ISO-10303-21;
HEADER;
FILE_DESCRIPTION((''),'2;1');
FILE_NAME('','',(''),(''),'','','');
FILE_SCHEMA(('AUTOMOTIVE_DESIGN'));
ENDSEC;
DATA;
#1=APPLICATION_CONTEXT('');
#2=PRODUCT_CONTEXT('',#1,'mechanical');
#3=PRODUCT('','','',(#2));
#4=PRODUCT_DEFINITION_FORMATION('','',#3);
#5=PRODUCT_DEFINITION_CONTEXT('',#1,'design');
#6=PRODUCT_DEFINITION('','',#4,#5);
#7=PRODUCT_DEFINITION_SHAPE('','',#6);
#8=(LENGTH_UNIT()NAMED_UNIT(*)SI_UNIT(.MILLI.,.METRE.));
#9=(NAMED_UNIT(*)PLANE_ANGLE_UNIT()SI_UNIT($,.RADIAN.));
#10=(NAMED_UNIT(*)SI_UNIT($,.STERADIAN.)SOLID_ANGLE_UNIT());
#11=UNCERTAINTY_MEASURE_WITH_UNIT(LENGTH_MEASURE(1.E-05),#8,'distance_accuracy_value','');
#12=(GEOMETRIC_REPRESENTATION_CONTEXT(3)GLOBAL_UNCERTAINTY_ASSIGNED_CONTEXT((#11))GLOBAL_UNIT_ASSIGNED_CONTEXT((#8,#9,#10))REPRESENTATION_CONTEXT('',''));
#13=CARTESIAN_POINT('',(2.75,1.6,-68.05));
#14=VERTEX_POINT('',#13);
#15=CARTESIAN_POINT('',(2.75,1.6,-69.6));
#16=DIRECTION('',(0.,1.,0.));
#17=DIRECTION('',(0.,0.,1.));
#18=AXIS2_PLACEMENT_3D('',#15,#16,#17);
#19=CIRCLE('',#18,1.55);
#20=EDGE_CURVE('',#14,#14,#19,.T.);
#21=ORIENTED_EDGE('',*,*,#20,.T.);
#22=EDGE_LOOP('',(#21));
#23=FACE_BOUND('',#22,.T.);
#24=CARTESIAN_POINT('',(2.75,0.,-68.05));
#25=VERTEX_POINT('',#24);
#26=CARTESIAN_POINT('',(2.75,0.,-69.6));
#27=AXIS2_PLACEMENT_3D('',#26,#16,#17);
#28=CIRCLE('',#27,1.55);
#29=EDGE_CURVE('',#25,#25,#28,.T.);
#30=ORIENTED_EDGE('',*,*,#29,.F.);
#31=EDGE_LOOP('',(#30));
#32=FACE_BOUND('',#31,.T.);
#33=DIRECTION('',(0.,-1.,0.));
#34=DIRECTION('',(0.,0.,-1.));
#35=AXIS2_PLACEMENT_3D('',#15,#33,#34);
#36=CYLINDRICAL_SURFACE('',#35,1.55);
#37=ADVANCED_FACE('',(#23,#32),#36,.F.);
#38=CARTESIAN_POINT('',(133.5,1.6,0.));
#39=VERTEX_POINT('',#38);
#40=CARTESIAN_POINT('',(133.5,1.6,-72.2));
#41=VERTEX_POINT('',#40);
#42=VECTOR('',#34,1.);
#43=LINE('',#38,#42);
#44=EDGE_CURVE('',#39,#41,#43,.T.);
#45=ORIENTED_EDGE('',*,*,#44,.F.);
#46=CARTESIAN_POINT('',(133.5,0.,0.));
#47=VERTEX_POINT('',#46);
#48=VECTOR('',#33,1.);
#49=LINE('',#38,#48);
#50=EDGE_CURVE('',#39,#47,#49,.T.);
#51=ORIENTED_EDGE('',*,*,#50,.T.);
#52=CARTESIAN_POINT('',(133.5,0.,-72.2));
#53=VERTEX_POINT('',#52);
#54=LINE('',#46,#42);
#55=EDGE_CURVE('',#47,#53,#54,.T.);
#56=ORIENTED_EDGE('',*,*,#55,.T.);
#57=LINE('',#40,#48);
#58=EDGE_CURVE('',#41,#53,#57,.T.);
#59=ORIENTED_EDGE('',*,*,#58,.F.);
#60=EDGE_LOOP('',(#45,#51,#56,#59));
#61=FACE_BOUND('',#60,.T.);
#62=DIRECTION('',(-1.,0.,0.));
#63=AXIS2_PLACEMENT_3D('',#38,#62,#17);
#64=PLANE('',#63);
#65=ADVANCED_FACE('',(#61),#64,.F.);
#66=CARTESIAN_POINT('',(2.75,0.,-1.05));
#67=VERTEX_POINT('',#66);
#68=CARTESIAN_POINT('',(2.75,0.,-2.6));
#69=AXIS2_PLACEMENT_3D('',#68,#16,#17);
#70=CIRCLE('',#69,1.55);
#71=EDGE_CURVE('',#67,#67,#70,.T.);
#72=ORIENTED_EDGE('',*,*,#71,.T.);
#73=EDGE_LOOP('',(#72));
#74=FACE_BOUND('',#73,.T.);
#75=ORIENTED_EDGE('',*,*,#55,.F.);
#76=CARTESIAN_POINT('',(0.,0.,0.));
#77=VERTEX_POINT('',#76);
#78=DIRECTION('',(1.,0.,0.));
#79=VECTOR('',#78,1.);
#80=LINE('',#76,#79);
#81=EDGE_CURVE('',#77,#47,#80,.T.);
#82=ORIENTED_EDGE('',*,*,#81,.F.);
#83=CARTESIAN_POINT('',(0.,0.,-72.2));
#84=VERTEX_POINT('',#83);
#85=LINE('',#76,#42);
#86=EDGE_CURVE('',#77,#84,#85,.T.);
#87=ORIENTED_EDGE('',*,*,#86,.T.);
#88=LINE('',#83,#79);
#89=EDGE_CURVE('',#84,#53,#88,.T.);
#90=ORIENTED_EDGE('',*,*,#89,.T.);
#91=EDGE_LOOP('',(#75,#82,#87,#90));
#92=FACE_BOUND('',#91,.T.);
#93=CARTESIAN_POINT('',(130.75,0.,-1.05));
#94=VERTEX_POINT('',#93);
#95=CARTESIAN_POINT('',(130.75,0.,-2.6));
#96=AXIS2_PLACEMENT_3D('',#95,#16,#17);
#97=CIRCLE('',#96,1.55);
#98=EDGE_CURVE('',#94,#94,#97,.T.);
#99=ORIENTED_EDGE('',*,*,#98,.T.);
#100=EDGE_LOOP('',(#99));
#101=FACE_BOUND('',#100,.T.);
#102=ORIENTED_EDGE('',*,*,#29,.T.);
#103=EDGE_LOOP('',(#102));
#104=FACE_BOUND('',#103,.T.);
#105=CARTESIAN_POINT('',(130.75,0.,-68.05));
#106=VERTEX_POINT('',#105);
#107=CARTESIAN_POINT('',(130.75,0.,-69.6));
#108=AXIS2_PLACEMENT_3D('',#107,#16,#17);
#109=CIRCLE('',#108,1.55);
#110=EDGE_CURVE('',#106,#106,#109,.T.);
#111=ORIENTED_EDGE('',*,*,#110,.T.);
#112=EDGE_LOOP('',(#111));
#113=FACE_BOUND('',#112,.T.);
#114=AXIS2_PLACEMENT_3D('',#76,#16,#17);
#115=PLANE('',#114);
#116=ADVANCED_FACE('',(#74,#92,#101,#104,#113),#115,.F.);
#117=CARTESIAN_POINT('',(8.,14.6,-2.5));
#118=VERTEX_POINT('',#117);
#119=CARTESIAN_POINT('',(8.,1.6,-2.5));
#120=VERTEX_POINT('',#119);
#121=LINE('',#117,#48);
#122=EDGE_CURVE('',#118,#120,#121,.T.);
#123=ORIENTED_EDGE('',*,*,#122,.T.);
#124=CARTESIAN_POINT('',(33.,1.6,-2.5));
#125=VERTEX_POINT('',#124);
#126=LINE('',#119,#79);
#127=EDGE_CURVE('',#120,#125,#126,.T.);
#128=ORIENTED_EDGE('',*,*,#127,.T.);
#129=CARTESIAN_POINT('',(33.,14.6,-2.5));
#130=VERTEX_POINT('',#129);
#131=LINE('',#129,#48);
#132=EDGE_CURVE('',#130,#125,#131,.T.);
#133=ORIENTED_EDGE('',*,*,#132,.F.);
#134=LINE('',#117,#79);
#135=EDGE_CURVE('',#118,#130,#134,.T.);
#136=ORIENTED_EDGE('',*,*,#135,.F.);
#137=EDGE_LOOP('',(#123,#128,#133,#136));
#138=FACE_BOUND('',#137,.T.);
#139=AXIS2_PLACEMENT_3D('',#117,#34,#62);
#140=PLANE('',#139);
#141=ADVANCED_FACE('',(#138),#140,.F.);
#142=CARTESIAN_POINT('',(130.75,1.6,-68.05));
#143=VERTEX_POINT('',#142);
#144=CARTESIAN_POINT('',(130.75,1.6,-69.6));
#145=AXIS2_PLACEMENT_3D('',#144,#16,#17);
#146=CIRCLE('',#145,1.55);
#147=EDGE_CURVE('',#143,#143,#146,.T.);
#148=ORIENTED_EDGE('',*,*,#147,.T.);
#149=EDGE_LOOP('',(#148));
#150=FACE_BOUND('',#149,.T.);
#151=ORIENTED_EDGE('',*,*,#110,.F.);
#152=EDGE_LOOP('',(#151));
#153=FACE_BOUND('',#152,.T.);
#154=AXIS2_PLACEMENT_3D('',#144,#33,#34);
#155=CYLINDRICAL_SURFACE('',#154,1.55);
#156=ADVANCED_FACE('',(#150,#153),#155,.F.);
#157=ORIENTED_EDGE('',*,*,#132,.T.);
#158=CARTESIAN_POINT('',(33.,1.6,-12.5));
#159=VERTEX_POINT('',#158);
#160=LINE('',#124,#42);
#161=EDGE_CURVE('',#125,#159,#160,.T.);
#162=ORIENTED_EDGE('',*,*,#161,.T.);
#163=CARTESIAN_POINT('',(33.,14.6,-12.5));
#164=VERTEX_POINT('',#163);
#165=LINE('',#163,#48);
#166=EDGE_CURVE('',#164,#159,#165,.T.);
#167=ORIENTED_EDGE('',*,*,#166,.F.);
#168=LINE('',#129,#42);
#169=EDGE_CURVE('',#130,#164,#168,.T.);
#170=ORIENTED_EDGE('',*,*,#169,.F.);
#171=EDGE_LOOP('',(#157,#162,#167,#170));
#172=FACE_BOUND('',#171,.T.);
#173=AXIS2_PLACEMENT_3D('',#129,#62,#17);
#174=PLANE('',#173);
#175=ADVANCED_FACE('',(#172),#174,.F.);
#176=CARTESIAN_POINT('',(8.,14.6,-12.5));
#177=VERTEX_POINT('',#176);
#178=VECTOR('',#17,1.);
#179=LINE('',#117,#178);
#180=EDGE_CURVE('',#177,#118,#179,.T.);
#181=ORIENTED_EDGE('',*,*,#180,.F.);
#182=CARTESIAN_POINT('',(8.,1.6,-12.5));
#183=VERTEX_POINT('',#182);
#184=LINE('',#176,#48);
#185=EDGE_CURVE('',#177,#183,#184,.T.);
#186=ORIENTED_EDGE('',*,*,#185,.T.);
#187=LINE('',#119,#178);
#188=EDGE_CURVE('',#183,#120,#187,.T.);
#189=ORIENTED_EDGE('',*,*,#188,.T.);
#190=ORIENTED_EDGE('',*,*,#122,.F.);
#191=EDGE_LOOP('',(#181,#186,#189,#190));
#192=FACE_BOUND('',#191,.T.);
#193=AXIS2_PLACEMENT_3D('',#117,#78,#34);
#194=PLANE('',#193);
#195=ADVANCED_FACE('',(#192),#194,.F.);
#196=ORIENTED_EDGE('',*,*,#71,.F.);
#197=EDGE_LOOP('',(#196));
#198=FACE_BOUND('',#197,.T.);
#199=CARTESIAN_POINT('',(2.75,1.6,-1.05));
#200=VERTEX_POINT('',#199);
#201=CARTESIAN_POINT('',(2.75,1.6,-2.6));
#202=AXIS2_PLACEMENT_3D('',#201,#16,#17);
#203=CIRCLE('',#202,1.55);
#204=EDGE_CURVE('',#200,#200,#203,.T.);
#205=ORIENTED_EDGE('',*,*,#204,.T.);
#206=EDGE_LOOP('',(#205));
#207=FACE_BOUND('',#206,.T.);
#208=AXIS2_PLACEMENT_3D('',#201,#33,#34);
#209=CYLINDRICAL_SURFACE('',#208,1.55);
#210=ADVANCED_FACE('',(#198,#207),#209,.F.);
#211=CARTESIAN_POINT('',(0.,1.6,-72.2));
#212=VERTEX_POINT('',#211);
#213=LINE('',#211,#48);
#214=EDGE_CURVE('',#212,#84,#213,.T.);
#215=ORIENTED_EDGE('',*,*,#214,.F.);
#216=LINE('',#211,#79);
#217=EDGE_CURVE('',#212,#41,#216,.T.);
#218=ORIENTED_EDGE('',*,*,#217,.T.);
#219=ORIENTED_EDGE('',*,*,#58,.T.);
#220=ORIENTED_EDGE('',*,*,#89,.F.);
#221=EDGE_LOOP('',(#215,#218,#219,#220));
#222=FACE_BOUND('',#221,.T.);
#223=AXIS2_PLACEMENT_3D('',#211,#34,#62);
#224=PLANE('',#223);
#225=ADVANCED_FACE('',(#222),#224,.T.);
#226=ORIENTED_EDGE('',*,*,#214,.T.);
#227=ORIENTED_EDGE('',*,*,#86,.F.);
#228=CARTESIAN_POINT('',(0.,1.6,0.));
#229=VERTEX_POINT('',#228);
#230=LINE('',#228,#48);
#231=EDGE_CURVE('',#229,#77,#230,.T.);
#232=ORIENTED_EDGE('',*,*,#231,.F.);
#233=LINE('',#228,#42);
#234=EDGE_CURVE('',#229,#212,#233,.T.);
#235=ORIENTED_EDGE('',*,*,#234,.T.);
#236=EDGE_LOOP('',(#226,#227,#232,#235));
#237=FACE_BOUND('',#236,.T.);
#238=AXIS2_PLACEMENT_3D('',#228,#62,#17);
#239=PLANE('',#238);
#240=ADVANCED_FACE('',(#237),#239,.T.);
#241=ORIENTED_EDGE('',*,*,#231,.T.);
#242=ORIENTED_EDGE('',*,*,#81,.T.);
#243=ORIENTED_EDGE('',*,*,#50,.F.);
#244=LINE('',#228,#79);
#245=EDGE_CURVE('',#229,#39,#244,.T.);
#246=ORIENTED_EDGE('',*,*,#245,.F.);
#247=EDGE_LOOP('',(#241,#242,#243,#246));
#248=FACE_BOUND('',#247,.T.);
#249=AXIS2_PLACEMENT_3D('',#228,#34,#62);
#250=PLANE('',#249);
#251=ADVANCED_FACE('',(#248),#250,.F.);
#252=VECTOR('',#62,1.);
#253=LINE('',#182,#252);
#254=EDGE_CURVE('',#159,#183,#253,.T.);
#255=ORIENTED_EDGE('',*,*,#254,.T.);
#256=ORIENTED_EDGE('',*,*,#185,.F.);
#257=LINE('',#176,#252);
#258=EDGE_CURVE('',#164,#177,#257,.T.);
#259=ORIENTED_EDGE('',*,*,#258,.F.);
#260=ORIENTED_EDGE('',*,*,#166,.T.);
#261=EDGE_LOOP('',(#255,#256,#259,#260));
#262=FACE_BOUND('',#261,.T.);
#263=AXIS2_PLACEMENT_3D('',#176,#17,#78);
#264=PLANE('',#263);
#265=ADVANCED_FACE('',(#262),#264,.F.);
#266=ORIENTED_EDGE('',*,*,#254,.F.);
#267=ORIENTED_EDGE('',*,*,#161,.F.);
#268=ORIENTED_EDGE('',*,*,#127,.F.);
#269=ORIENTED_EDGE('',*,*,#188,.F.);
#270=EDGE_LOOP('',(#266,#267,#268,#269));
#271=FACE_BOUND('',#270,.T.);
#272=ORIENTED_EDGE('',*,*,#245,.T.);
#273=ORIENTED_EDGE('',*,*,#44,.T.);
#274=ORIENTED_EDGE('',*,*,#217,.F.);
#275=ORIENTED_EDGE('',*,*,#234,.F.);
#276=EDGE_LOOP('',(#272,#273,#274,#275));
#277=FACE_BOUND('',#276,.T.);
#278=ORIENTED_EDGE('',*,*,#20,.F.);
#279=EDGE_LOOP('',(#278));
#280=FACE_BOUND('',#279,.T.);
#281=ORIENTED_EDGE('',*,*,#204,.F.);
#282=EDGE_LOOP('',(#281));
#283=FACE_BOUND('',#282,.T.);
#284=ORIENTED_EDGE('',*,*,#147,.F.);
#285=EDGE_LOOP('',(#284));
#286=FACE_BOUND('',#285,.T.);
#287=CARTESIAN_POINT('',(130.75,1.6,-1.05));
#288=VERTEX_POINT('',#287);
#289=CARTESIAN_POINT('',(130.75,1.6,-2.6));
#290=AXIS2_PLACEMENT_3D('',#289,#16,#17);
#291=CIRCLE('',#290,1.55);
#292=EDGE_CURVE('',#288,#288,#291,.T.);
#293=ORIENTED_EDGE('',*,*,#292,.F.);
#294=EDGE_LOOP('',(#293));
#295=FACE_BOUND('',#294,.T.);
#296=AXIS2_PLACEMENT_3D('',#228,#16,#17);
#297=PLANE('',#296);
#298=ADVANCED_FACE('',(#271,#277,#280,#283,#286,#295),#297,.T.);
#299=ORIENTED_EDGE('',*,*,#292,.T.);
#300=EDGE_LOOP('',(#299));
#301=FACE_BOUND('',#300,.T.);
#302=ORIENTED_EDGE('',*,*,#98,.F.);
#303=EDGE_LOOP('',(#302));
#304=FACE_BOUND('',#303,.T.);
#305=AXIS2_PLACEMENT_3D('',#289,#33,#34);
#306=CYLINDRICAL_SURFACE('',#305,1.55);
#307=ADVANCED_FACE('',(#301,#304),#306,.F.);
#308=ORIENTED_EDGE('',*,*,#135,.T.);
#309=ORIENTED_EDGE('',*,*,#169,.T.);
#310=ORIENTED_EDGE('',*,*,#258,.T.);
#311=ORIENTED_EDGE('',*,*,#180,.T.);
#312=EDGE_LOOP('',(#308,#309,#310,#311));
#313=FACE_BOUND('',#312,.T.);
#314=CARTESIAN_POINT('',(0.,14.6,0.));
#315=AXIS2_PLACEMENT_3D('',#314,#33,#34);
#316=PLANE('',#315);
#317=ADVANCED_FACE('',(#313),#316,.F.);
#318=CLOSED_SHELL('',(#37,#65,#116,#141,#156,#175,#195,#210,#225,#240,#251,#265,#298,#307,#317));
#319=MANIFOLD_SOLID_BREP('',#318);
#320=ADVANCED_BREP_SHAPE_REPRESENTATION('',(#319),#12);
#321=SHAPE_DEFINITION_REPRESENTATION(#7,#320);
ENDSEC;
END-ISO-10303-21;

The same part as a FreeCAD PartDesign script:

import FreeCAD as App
import Part
import Sketcher

V = App.Vector
Q = App.Units.Quantity


def add_polygon(sketch, points):
    """Adds a closed chain of lines whose ends are joined by coincident constraints."""
    first, n = sketch.GeometryCount, len(points)
    for a, b in zip(points, points[1:] + points[:1]):
        sketch.addGeometry(Part.LineSegment(App.Vector(*a, 0), App.Vector(*b, 0)), False)
    for i in range(n):
        sketch.addConstraint(Sketcher.Constraint("Coincident", first + i, 2, first + (i + 1) % n, 1))

doc = App.newDocument("Part")
params = doc.addObject("Spreadsheet::Sheet", "Params")
for row, (alias, value) in enumerate([
    ("sketch1_diameter", "3.1 mm"),
    ("sketch1_width", "133.5 mm"),
    ("sketch1_height", "72.2 mm"),
    ("pad1_length", "1.6 mm"),
    ("sketch2_width", "25 mm"),
    ("sketch2_height", "10 mm"),
    ("pad2_length", "13 mm"),
], start=1):
    params.set(f"A{row}", alias)
    params.set(f"B{row}", "=" + value)
    params.setAlias(f"B{row}", alias)

body = doc.addObject("PartDesign::Body", "Body")

sketch1 = body.newObject("Sketcher::SketchObject", "Sketch")
sketch1.AttachmentSupport = (doc.getObject("XZ_Plane"), [""])
sketch1.MapMode = "FlatFace"
add_polygon(sketch1, [(0, -72.2), (0, 0), (133.5, 0), (133.5, -72.2)])
sketch1.addGeometry(Part.Circle(V(2.8, -2.6, 0), V(0, 0, 1), 1.6), False)
sketch1.addGeometry(Part.Circle(V(130.8, -2.6, 0), V(0, 0, 1), 1.6), False)
sketch1.addGeometry(Part.Circle(V(2.8, -69.6, 0), V(0, 0, 1), 1.6), False)
sketch1.addGeometry(Part.Circle(V(130.8, -69.6, 0), V(0, 0, 1), 1.6), False)
sketch1.addConstraint(Sketcher.Constraint("Vertical", 0))
sketch1.addConstraint(Sketcher.Constraint("Horizontal", 1))
sketch1.addConstraint(Sketcher.Constraint("Vertical", 2))
sketch1.addConstraint(Sketcher.Constraint("Horizontal", 3))
sketch1.addConstraint(Sketcher.Constraint("Coincident", 0, 2, -1, 1))
sketch1.addConstraint(Sketcher.Constraint("Equal", 4, 5))
sketch1.addConstraint(Sketcher.Constraint("Equal", 5, 6))
sketch1.addConstraint(Sketcher.Constraint("Equal", 6, 7))
sketch1.addConstraint(Sketcher.Constraint("Horizontal", 4, 3, 5, 3))
sketch1.addConstraint(Sketcher.Constraint("Horizontal", 6, 3, 7, 3))
sketch1.addConstraint(Sketcher.Constraint("Vertical", 4, 3, 6, 3))
sketch1.addConstraint(Sketcher.Constraint("Vertical", 5, 3, 7, 3))
sketch1.addConstraint(Sketcher.Constraint("Diameter", 4, Q("3.1 mm")))
sketch1.addConstraint(Sketcher.Constraint("DistanceX", 1, 1, 1, 2, Q("133.5 mm")))
sketch1.addConstraint(Sketcher.Constraint("DistanceY", 0, 1, 0, 2, Q("72.2 mm")))
sketch1.addConstraint(Sketcher.Constraint("DistanceX", 4, 3, 5, 3, Q("128 mm")))
sketch1.addConstraint(Sketcher.Constraint("DistanceY", 6, 3, 4, 3, Q("67 mm")))
sketch1.addConstraint(Sketcher.Constraint("DistanceY", 4, 3, -1, 1, Q("2.6 mm")))
sketch1.addConstraint(Sketcher.Constraint("DistanceX", -1, 1, 4, 3, Q("2.75 mm")))
sketch1.setExpression("Constraints[16]", "Params.sketch1_diameter")
sketch1.setExpression("Constraints[17]", "Params.sketch1_width")
sketch1.setExpression("Constraints[18]", "Params.sketch1_height")
pad1 = body.newObject("PartDesign::Pad", "Pad")
pad1.Profile = sketch1
pad1.setExpression("Length", "Params.pad1_length")
pad1.Reversed = True

sketch2 = body.newObject("Sketcher::SketchObject", "Sketch001")
sketch2.AttachmentSupport = (doc.getObject("XZ_Plane"), [""])
sketch2.MapMode = "FlatFace"
sketch2.AttachmentOffset = App.Placement(V(0, 0, -1.6), App.Rotation())
add_polygon(sketch2, [(8, -12), (8, -2), (33, -2), (33, -12)])
sketch2.addConstraint(Sketcher.Constraint("Vertical", 0))
sketch2.addConstraint(Sketcher.Constraint("Horizontal", 1))
sketch2.addConstraint(Sketcher.Constraint("Vertical", 2))
sketch2.addConstraint(Sketcher.Constraint("Horizontal", 3))
sketch2.addConstraint(Sketcher.Constraint("DistanceX", 1, 1, 1, 2, Q("25 mm")))
sketch2.addConstraint(Sketcher.Constraint("DistanceY", 0, 1, 0, 2, Q("10 mm")))
sketch2.addConstraint(Sketcher.Constraint("DistanceX", -1, 1, 0, 2, Q("8 mm")))
sketch2.addConstraint(Sketcher.Constraint("DistanceY", 0, 2, -1, 1, Q("2.5 mm")))
sketch2.setExpression("Constraints[8]", "Params.sketch2_width")
sketch2.setExpression("Constraints[9]", "Params.sketch2_height")
pad2 = body.newObject("PartDesign::Pad", "Pad001")
pad2.Profile = sketch2
pad2.setExpression("Length", "Params.pad2_length")
pad2.Reversed = True

doc.recompute()
